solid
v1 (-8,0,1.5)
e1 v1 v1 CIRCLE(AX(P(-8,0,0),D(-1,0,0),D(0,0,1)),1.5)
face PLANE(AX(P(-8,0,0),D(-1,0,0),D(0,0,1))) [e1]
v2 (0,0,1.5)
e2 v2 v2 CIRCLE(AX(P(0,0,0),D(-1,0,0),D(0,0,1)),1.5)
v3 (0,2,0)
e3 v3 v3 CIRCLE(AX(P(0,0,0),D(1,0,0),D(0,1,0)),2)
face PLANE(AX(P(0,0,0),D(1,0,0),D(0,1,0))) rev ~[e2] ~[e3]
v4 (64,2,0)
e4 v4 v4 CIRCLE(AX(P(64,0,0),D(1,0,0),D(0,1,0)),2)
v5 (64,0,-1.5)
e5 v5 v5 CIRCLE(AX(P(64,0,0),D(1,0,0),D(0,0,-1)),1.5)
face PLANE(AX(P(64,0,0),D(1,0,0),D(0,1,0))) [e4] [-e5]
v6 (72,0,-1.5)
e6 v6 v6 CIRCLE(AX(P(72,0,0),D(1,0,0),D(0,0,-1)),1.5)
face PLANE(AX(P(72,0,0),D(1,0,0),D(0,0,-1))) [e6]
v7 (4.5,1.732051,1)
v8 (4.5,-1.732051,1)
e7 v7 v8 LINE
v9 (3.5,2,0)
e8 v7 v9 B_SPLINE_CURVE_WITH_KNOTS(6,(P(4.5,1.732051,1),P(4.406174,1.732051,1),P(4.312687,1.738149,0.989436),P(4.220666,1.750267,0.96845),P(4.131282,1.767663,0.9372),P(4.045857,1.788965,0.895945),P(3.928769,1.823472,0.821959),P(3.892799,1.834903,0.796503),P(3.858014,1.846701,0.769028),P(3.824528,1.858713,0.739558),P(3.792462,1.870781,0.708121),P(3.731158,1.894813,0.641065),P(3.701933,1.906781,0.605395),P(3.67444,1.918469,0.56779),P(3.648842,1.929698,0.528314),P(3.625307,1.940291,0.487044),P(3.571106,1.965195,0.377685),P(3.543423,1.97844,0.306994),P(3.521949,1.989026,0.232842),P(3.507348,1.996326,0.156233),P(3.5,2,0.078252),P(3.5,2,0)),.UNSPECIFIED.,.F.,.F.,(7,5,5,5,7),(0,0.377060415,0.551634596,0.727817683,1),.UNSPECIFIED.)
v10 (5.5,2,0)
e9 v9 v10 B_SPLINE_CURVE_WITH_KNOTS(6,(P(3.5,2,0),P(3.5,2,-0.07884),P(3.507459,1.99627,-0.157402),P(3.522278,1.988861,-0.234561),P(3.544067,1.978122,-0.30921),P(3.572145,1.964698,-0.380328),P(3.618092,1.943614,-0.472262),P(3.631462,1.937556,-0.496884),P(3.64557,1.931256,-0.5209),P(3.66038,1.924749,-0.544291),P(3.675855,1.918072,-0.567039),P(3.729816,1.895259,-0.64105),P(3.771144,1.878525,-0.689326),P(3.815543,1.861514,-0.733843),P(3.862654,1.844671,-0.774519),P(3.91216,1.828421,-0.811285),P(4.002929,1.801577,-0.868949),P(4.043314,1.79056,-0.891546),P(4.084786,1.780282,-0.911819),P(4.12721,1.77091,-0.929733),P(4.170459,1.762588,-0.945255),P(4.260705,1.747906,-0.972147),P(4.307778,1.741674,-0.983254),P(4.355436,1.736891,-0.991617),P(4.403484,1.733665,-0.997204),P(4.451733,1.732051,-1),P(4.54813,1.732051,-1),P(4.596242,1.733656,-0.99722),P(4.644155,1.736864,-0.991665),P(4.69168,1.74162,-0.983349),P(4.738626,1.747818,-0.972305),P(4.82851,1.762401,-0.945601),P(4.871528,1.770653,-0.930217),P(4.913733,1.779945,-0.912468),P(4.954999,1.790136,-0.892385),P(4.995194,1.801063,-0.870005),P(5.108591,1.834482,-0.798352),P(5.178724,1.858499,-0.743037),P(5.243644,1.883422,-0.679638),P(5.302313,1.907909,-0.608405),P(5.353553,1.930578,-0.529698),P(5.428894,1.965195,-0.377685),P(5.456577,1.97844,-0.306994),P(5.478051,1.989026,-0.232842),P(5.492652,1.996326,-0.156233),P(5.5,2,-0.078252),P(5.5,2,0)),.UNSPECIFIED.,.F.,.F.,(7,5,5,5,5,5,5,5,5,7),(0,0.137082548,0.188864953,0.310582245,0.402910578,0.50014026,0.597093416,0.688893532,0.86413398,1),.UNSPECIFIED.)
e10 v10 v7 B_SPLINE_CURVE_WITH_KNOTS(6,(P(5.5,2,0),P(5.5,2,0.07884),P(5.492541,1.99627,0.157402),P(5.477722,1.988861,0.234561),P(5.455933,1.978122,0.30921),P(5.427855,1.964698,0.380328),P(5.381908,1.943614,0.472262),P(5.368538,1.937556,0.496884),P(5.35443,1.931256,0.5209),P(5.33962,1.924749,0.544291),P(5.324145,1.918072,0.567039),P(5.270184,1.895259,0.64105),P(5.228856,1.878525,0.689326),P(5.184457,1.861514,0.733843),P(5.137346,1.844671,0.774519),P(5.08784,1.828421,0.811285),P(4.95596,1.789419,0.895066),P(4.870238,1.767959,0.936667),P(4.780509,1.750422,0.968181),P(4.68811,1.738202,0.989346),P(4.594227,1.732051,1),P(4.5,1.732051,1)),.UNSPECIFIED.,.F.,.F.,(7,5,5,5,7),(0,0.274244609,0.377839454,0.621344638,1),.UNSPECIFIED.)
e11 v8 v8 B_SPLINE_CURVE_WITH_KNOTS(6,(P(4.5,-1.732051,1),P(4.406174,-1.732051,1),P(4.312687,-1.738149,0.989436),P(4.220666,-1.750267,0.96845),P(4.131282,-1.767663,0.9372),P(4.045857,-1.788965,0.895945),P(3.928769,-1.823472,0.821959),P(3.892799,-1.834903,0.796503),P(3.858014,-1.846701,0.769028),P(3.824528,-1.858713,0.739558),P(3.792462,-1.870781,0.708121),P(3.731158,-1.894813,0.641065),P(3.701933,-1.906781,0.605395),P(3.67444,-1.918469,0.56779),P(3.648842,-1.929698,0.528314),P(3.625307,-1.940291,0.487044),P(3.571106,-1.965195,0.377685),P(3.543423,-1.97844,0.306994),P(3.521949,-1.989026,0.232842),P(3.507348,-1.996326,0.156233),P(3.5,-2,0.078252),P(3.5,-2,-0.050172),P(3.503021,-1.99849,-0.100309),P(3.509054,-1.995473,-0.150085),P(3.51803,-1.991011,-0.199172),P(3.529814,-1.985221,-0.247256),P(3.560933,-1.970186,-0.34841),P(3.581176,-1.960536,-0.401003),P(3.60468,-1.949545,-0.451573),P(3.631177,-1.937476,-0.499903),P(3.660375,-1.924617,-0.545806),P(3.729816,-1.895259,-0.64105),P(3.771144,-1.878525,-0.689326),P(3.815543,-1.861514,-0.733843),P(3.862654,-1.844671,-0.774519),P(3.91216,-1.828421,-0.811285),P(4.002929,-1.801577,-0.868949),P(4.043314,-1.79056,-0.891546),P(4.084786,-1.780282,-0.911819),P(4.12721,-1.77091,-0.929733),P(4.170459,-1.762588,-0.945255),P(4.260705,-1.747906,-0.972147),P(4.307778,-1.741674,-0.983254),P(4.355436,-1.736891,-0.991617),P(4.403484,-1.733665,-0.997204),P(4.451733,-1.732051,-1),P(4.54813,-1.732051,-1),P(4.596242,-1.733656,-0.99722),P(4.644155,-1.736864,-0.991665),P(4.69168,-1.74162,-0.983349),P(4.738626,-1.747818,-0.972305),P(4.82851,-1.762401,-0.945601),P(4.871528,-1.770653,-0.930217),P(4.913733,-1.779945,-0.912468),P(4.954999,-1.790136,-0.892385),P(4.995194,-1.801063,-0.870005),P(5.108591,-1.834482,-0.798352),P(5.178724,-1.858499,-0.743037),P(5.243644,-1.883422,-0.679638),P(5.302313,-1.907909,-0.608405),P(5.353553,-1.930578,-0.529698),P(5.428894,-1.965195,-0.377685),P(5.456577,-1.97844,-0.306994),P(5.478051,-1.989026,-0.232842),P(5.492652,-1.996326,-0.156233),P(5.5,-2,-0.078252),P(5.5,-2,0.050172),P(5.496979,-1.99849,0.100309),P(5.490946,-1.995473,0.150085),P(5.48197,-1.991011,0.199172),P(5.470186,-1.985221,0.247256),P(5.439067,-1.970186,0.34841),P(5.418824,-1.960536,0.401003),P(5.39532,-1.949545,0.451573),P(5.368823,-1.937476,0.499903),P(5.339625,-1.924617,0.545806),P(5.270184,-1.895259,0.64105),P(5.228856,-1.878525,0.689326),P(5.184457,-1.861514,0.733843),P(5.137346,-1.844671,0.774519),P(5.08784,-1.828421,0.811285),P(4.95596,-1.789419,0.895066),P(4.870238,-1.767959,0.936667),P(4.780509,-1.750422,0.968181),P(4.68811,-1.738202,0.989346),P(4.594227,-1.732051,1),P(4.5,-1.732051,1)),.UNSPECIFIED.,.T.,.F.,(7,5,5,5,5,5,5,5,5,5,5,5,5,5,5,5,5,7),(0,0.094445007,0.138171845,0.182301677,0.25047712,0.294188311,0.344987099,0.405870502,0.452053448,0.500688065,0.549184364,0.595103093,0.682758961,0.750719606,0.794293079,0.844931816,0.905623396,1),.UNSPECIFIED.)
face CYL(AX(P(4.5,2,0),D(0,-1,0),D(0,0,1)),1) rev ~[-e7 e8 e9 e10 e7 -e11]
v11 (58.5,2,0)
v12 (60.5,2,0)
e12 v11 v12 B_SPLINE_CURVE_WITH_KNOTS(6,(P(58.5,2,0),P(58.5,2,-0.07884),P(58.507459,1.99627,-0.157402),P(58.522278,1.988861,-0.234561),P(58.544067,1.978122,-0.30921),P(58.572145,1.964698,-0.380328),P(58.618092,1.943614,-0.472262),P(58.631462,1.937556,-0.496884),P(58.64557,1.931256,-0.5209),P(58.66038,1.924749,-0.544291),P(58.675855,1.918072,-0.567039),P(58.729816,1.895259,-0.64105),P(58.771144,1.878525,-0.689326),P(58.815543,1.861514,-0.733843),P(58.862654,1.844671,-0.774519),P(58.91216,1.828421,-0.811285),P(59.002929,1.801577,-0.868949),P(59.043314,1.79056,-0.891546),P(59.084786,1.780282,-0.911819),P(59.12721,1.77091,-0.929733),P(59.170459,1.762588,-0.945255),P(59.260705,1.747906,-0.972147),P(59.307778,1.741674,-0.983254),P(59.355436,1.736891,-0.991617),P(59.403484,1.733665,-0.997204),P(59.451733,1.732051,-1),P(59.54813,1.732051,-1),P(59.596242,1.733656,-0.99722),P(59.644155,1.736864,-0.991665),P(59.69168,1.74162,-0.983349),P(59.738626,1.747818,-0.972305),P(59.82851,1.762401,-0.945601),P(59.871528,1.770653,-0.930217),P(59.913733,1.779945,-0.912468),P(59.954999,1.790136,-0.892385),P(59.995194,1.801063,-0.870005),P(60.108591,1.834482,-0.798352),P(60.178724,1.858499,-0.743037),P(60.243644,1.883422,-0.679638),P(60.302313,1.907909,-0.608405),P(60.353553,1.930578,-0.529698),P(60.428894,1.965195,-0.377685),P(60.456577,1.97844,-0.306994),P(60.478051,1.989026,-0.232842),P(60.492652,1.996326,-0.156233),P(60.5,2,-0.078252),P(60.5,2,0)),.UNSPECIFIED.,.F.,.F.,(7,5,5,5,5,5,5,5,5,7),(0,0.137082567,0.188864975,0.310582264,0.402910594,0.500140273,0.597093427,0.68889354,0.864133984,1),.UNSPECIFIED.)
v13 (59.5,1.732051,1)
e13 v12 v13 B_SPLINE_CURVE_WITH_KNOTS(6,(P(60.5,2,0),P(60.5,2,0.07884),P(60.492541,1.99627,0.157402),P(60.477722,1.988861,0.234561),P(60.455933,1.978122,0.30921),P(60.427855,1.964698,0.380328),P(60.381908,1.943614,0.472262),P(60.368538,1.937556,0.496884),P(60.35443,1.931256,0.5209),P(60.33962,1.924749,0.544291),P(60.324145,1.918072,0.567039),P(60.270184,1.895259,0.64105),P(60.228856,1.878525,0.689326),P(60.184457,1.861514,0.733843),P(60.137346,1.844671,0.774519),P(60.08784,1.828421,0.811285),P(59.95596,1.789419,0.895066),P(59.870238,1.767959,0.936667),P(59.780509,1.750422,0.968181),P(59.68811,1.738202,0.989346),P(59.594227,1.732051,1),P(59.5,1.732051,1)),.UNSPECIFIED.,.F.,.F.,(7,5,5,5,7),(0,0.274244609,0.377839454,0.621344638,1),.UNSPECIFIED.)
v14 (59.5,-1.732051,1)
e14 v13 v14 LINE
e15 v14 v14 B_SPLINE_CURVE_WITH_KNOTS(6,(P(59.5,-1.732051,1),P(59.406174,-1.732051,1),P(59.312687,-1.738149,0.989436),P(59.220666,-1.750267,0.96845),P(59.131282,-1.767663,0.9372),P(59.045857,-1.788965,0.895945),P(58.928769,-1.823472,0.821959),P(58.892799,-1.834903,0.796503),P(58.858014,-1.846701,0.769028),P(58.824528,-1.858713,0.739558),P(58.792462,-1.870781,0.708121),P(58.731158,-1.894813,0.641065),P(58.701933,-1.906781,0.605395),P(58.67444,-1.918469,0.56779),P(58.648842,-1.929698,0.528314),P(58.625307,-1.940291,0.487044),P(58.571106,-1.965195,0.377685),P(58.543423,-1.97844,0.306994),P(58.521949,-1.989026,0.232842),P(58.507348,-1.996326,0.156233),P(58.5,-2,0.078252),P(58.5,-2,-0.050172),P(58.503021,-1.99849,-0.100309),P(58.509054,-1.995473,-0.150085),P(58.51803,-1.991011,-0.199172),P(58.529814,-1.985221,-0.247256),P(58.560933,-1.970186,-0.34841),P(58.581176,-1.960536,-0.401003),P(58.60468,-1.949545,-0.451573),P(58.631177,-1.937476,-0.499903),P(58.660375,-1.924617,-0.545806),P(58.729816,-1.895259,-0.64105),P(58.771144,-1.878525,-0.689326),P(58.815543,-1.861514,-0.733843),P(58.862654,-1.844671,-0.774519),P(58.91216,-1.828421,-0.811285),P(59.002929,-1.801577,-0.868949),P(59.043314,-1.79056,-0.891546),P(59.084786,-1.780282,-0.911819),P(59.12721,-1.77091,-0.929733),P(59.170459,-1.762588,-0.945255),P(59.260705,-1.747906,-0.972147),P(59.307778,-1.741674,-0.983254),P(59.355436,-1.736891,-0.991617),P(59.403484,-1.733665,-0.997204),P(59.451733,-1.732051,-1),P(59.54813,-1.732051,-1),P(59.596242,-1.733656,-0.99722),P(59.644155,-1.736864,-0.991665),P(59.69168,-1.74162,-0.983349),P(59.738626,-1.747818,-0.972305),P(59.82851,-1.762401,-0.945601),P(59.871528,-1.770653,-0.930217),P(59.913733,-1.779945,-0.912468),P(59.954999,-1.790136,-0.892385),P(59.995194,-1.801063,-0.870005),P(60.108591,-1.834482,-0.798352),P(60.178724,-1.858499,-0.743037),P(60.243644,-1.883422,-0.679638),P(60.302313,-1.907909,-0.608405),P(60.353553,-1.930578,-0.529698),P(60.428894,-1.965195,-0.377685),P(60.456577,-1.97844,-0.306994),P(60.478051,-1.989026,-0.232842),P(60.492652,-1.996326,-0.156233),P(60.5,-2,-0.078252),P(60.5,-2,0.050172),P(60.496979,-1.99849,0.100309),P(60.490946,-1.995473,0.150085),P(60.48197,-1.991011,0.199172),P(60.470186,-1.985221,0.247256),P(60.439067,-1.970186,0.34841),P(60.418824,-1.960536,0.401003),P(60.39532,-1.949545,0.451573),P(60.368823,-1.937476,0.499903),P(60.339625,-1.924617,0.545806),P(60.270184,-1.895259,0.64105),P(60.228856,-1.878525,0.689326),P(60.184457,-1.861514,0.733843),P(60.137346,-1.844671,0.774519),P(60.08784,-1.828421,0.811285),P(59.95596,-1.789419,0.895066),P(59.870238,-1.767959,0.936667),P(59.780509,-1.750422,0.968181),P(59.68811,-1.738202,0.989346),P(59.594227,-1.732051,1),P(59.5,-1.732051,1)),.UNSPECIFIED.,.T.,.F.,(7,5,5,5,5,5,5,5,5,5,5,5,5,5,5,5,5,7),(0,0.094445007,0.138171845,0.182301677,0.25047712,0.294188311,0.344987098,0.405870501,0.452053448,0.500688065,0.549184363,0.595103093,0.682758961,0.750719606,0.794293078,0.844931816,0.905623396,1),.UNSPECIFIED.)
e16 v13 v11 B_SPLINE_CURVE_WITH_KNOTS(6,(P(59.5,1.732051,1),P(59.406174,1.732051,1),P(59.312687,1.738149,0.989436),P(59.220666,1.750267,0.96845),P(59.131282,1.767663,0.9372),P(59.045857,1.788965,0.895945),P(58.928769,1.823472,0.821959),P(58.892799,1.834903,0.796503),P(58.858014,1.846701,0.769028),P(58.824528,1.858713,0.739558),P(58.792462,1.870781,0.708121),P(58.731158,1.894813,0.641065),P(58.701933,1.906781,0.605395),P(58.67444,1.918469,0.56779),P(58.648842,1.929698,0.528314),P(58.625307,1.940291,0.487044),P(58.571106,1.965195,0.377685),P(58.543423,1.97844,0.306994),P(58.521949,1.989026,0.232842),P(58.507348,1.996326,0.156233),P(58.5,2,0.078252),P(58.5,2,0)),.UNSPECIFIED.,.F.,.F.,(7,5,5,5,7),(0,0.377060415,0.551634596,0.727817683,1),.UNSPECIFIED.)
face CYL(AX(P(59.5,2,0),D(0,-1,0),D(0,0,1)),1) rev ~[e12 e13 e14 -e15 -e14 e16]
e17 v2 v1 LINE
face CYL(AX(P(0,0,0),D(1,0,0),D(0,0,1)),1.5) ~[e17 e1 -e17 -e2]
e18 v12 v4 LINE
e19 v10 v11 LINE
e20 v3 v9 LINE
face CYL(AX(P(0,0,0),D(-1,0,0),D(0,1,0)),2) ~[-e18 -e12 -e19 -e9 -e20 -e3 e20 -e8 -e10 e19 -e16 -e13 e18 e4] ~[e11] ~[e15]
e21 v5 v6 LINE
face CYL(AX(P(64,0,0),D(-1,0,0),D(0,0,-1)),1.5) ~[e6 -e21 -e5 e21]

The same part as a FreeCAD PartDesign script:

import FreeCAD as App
import Part
import Sketcher
Q = App.Units.Quantity

doc = App.newDocument("Part")
body = doc.addObject("PartDesign::Body", "Body")

sketch1 = body.newObject("Sketcher::SketchObject", "Sketch")
sketch1.AttachmentSupport = (doc.getObject("YZ_Plane"), [""])
sketch1.MapMode = "FlatFace"
sketch1.addGeometry(Part.Circle(App.Vector(0, 0, 0), App.Vector(0, 0, 1), 2), False)
sketch1.addConstraint(Sketcher.Constraint("Coincident", 0, 3, -1, 1))
sketch1.addConstraint(Sketcher.Constraint("Diameter", 0, Q("4 mm")))
pad1 = body.newObject("PartDesign::Pad", "Pad")
pad1.Profile = sketch1
pad1.Length = 64

sketch2 = body.newObject("Sketcher::SketchObject", "Sketch001")
sketch2.AttachmentSupport = (doc.getObject("YZ_Plane"), [""])
sketch2.MapMode = "FlatFace"
sketch2.addGeometry(Part.Circle(App.Vector(0, 0, 0), App.Vector(0, 0, 1), 1.5), False)
sketch2.addConstraint(Sketcher.Constraint("Coincident", 0, 3, -1, 1))
sketch2.addConstraint(Sketcher.Constraint("Diameter", 0, Q("3 mm")))
pad2 = body.newObject("PartDesign::Pad", "Pad001")
pad2.Profile = sketch2
pad2.Length = 8
pad2.Reversed = True

sketch3 = body.newObject("Sketcher::SketchObject", "Sketch002")
sketch3.AttachmentSupport = (doc.getObject("YZ_Plane"), [""])
sketch3.MapMode = "FlatFace"
sketch3.AttachmentOffset = App.Placement(App.Vector(0, 0, 64), App.Rotation())
sketch3.addGeometry(Part.Circle(App.Vector(0, 0, 0), App.Vector(0, 0, 1), 1.5), False)
sketch3.addConstraint(Sketcher.Constraint("Coincident", 0, 3, -1, 1))
sketch3.addConstraint(Sketcher.Constraint("Diameter", 0, Q("3 mm")))
pad3 = body.newObject("PartDesign::Pad", "Pad002")
pad3.Profile = sketch3
pad3.Length = 8

sketch4 = body.newObject("Sketcher::SketchObject", "Sketch003")
sketch4.AttachmentSupport = (doc.getObject("XZ_Plane"), [""])
sketch4.MapMode = "FlatFace"
sketch4.AttachmentOffset = App.Placement(App.Vector(0, 0, -2), App.Rotation())
sketch4.addGeometry(Part.Circle(App.Vector(59.5, 0, 0), App.Vector(0, 0, 1), 1), False)
sketch4.addGeometry(Part.Circle(App.Vector(4.5, 0, 0), App.Vector(0, 0, 1), 1), False)
sketch4.addConstraint(Sketcher.Constraint("Equal", 0, 1))
sketch4.addConstraint(Sketcher.Constraint("PointOnObject", 0, 3, -1))
sketch4.addConstraint(Sketcher.Constraint("PointOnObject", 1, 3, -1))
sketch4.addConstraint(Sketcher.Constraint("Diameter", 0, Q("2 mm")))
sketch4.addConstraint(Sketcher.Constraint("DistanceX", 1, 3, 0, 3, Q("55 mm")))
sketch4.addConstraint(Sketcher.Constraint("DistanceX", -1, 1, 0, 3, Q("59.5 mm")))
doc.recompute()
hole = body.newObject("PartDesign::Hole", "Hole")
hole.Profile = sketch4
hole.ThreadType = "None"
hole.Diameter = 2
hole.DepthType = "ThroughAll"
hole.Reversed = True

doc.recompute()
